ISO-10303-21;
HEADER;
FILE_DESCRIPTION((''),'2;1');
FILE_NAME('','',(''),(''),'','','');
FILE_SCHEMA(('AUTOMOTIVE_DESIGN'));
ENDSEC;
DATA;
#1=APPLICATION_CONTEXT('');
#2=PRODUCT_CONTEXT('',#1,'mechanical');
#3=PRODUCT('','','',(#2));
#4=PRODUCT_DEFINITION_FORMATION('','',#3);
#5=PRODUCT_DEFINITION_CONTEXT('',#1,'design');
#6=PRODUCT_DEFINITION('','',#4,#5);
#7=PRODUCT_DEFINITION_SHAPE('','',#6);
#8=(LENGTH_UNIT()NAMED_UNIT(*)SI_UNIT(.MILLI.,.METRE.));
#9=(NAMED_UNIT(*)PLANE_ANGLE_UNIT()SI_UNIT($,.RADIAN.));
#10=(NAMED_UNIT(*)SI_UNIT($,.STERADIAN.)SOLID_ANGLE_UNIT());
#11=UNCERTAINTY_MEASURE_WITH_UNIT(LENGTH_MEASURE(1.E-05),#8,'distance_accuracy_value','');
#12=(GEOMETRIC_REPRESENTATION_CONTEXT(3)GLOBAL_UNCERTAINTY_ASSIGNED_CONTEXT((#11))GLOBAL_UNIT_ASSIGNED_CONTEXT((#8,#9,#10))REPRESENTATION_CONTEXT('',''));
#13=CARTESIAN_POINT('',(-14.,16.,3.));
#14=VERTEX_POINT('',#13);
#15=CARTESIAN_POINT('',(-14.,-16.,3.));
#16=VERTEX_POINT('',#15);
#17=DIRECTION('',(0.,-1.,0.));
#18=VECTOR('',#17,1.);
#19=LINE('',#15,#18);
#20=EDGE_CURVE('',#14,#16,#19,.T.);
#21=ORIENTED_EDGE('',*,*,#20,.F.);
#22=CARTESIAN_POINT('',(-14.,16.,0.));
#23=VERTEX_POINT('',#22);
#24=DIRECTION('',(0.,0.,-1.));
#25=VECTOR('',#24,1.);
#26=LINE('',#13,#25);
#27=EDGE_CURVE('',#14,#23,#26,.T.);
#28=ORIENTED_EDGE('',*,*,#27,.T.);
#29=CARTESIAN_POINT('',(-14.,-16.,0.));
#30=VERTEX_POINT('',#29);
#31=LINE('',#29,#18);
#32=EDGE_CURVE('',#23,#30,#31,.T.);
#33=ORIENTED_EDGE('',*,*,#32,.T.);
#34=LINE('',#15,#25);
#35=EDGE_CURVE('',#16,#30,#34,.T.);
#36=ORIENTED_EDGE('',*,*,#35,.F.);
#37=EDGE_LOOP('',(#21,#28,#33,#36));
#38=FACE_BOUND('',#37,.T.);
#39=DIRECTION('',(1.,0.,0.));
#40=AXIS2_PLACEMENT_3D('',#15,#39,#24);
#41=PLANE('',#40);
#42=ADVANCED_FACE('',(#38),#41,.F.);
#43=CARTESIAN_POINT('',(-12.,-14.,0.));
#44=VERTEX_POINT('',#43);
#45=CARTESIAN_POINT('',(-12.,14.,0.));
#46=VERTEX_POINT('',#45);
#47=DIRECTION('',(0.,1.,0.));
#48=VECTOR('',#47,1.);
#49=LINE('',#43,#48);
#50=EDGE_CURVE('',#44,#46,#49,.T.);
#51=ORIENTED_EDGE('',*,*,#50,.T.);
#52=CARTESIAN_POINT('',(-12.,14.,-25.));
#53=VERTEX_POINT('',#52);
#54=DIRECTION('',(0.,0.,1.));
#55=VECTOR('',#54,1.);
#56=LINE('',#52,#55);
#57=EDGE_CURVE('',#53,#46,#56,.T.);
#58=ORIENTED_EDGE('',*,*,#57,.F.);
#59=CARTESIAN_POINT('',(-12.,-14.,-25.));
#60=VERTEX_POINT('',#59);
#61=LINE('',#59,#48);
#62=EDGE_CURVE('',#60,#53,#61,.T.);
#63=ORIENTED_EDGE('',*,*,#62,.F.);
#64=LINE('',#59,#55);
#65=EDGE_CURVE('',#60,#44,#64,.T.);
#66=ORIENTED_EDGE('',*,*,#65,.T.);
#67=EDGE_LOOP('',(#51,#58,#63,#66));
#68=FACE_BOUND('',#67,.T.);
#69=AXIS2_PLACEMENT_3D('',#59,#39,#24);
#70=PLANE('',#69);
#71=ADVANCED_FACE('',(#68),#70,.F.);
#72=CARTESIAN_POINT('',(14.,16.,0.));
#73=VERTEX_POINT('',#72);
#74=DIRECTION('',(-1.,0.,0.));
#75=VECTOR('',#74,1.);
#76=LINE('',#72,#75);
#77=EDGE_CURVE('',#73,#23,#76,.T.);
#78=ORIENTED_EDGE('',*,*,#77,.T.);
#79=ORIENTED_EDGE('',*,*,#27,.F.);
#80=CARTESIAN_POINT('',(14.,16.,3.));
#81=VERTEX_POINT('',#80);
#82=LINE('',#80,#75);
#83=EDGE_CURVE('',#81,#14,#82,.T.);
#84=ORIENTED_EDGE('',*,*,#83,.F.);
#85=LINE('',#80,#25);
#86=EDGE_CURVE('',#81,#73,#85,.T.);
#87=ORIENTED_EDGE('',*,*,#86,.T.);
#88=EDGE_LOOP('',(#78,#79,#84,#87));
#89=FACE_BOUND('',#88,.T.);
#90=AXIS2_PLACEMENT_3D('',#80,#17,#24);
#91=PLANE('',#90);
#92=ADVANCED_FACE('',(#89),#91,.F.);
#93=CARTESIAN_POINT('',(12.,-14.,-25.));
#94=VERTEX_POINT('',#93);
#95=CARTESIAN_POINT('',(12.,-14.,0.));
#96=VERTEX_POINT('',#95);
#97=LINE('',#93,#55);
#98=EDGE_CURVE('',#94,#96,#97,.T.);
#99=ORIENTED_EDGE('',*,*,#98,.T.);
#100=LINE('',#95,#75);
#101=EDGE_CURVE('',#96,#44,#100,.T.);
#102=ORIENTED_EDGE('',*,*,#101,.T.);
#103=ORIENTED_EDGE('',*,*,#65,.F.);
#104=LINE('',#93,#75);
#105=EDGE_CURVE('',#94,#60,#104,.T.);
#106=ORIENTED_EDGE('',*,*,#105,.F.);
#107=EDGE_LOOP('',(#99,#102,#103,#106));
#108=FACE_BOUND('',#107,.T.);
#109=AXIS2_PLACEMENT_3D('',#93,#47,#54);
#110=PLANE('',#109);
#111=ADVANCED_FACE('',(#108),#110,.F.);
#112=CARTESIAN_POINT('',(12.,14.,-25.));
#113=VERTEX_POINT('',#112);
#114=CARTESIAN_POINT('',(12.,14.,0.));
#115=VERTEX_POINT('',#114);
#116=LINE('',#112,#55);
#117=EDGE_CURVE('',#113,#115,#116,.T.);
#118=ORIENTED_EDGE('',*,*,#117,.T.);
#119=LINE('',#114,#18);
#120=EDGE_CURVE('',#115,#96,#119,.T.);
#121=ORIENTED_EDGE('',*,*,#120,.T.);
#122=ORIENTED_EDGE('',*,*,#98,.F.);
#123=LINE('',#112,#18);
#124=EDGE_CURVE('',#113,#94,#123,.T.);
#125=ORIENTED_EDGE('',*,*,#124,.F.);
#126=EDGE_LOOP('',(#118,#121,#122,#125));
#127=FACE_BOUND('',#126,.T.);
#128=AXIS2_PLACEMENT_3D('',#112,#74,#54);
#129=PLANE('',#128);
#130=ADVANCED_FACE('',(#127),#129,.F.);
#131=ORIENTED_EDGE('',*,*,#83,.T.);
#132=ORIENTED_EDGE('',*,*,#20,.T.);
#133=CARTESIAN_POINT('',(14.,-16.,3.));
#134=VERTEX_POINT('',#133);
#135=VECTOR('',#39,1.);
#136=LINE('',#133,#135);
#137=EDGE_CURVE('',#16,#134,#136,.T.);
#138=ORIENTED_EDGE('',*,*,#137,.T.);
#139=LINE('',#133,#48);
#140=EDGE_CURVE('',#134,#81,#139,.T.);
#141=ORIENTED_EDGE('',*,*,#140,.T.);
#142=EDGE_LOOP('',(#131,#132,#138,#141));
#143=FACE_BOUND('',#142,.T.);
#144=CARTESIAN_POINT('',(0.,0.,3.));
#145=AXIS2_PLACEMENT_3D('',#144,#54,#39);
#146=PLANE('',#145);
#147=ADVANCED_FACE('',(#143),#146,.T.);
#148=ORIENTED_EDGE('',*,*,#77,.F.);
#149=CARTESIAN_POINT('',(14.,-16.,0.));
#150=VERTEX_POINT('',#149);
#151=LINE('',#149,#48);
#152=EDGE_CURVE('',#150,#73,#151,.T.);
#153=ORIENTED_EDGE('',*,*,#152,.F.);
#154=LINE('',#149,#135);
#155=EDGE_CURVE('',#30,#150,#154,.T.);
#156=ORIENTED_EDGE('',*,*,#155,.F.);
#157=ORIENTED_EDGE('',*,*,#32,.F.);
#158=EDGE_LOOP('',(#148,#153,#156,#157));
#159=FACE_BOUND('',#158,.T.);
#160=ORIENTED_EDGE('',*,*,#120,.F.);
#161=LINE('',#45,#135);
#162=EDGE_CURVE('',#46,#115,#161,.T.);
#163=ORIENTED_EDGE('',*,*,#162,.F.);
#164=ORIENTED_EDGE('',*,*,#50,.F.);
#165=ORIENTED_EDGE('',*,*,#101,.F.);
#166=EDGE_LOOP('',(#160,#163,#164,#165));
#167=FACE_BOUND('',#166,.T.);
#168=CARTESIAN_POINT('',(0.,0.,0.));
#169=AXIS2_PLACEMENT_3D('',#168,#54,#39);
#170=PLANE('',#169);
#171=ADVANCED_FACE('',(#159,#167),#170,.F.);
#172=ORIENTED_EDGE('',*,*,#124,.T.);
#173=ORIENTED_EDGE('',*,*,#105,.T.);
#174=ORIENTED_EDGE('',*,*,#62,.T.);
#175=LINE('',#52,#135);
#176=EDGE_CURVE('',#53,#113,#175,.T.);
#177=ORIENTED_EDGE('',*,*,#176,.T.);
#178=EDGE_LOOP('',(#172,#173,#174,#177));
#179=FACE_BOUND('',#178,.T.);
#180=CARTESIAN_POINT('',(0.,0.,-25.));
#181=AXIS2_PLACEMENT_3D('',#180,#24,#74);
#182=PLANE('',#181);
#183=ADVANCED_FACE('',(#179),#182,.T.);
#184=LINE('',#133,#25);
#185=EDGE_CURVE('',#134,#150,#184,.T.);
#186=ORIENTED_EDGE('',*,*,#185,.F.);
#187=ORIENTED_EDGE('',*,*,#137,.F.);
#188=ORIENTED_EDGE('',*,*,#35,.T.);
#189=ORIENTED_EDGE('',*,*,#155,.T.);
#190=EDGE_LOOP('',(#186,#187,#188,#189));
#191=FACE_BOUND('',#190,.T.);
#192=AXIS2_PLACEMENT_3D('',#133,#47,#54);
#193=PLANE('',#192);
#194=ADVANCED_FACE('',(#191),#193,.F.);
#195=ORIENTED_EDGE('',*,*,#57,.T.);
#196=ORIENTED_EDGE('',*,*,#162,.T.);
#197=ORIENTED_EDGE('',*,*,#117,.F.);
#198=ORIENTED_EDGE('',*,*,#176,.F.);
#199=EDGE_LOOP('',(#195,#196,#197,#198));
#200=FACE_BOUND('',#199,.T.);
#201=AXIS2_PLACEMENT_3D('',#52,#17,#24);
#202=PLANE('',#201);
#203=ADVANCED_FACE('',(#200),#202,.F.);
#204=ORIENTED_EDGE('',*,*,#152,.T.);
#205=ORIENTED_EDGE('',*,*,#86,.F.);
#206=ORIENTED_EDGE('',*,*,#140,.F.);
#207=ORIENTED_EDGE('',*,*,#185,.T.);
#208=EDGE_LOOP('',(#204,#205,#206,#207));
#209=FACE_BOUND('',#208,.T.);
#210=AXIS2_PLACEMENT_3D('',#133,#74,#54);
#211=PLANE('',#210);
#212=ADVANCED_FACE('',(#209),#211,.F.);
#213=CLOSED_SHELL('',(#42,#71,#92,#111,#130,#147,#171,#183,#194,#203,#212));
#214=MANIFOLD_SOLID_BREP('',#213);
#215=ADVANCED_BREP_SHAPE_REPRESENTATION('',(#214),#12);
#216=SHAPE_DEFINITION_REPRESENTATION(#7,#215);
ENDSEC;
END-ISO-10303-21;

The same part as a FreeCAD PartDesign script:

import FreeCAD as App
import Part
import Sketcher

V = App.Vector


def add_polygon(sketch, points):
    """Adds a closed chain of lines whose ends are joined by coincident constraints."""
    first, n = sketch.GeometryCount, len(points)
    for a, b in zip(points, points[1:] + points[:1]):
        sketch.addGeometry(Part.LineSegment(App.Vector(*a, 0), App.Vector(*b, 0)), False)
    for i in range(n):
        sketch.addConstraint(Sketcher.Constraint("Coincident", first + i, 2, first + (i + 1) % n, 1))

doc = App.newDocument("Part")
params = doc.addObject("Spreadsheet::Sheet", "Params")
for row, (alias, value) in enumerate([
    ("sketch1_width", "28 mm"),
    ("sketch1_height", "32 mm"),
    ("pad1_length", "3 mm"),
    ("sketch2_width", "24 mm"),
    ("sketch2_height", "28 mm"),
    ("pad2_length", "25 mm"),
], start=1):
    params.set(f"A{row}", alias)
    params.set(f"B{row}", "=" + value)
    params.setAlias(f"B{row}", alias)

body = doc.addObject("PartDesign::Body", "Body")

sketch1 = doc.addObject("Sketcher::SketchObject", "Sketch")
body.addObject(sketch1)
sketch1.AttachmentSupport = (doc.XY_Plane, [""])
sketch1.MapMode = "FlatFace"
add_polygon(sketch1, [(-14, 16), (-14, -16), (14, -16), (14, 16)])
sketch1.addConstraint([
    Sketcher.Constraint("Vertical", 0),
    Sketcher.Constraint("Horizontal", 1),
    Sketcher.Constraint("Vertical", 2),
    Sketcher.Constraint("Horizontal", 3),
    Sketcher.Constraint("Symmetric", 0, 2, 2, 2, -1, 1),
    Sketcher.Constraint("DistanceX", 1, 1, 1, 2, 28.0),
    Sketcher.Constraint("DistanceY", 0, 2, 0, 1, 32.0),
])
sketch1.setExpression("Constraints[9]", "Params.sketch1_width")
sketch1.setExpression("Constraints[10]", "Params.sketch1_height")
pad1 = doc.addObject("PartDesign::Pad", "Pad")
body.addObject(pad1)
pad1.Profile = sketch1
pad1.setExpression("Length", "Params.pad1_length")

sketch2 = doc.addObject("Sketcher::SketchObject", "Sketch001")
body.addObject(sketch2)
sketch2.AttachmentSupport = (doc.XY_Plane, [""])
sketch2.MapMode = "FlatFace"
add_polygon(sketch2, [(12, 14), (12, -14), (-12, -14), (-12, 14)])
sketch2.addConstraint([
    Sketcher.Constraint("Vertical", 0),
    Sketcher.Constraint("Horizontal", 1),
    Sketcher.Constraint("Vertical", 2),
    Sketcher.Constraint("Horizontal", 3),
    Sketcher.Constraint("Symmetric", 0, 2, 2, 2, -1, 1),
    Sketcher.Constraint("DistanceX", 1, 2, 1, 1, 24.0),
    Sketcher.Constraint("DistanceY", 0, 2, 0, 1, 28.0),
])
sketch2.setExpression("Constraints[9]", "Params.sketch2_width")
sketch2.setExpression("Constraints[10]", "Params.sketch2_height")
pad2 = doc.addObject("PartDesign::Pad", "Pad001")
body.addObject(pad2)
pad2.Profile = sketch2
pad2.setExpression("Length", "Params.pad2_length")
pad2.Reversed = True

doc.recompute()
